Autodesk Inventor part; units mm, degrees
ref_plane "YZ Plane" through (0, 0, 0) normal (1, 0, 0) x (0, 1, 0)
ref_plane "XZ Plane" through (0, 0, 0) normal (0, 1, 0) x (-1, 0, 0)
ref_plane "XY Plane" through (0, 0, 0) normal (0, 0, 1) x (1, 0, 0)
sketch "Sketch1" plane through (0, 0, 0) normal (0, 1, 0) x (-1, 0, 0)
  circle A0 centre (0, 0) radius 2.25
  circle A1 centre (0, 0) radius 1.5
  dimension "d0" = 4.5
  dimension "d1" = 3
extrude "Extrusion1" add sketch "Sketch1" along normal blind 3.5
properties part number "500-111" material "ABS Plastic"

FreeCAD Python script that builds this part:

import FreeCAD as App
import Part
import Sketcher

doc = App.newDocument("Part")
body = doc.addObject("PartDesign::Body", "Body")

# Sketch on XZ plane
sketch1 = body.newObject("Sketcher::SketchObject", "Sketch")
sketch1.AttachmentSupport = (doc.getObject("XZ_Plane"), [""])
sketch1.MapMode = "FlatFace"
sketch1.addGeometry([
    Part.Circle(App.Vector(0, 0, 0), App.Vector(0, 0, 1), 2.25),
    Part.Circle(App.Vector(0, 0, 0), App.Vector(0, 0, 1), 1.5),
], False)
sketch1.addConstraint([
    Sketcher.Constraint("Coincident", 0, 3, -1, 1),
    Sketcher.Constraint("Coincident", 1, 3, -1, 1),
    Sketcher.Constraint("Diameter", 1, 3.0),
    Sketcher.Constraint("Diameter", 0, 4.5),
])
pad1 = body.newObject("PartDesign::Pad", "Pad")
pad1.Profile = sketch1
pad1.Length = 3.5
pad1.Reversed = True

doc.recompute()
